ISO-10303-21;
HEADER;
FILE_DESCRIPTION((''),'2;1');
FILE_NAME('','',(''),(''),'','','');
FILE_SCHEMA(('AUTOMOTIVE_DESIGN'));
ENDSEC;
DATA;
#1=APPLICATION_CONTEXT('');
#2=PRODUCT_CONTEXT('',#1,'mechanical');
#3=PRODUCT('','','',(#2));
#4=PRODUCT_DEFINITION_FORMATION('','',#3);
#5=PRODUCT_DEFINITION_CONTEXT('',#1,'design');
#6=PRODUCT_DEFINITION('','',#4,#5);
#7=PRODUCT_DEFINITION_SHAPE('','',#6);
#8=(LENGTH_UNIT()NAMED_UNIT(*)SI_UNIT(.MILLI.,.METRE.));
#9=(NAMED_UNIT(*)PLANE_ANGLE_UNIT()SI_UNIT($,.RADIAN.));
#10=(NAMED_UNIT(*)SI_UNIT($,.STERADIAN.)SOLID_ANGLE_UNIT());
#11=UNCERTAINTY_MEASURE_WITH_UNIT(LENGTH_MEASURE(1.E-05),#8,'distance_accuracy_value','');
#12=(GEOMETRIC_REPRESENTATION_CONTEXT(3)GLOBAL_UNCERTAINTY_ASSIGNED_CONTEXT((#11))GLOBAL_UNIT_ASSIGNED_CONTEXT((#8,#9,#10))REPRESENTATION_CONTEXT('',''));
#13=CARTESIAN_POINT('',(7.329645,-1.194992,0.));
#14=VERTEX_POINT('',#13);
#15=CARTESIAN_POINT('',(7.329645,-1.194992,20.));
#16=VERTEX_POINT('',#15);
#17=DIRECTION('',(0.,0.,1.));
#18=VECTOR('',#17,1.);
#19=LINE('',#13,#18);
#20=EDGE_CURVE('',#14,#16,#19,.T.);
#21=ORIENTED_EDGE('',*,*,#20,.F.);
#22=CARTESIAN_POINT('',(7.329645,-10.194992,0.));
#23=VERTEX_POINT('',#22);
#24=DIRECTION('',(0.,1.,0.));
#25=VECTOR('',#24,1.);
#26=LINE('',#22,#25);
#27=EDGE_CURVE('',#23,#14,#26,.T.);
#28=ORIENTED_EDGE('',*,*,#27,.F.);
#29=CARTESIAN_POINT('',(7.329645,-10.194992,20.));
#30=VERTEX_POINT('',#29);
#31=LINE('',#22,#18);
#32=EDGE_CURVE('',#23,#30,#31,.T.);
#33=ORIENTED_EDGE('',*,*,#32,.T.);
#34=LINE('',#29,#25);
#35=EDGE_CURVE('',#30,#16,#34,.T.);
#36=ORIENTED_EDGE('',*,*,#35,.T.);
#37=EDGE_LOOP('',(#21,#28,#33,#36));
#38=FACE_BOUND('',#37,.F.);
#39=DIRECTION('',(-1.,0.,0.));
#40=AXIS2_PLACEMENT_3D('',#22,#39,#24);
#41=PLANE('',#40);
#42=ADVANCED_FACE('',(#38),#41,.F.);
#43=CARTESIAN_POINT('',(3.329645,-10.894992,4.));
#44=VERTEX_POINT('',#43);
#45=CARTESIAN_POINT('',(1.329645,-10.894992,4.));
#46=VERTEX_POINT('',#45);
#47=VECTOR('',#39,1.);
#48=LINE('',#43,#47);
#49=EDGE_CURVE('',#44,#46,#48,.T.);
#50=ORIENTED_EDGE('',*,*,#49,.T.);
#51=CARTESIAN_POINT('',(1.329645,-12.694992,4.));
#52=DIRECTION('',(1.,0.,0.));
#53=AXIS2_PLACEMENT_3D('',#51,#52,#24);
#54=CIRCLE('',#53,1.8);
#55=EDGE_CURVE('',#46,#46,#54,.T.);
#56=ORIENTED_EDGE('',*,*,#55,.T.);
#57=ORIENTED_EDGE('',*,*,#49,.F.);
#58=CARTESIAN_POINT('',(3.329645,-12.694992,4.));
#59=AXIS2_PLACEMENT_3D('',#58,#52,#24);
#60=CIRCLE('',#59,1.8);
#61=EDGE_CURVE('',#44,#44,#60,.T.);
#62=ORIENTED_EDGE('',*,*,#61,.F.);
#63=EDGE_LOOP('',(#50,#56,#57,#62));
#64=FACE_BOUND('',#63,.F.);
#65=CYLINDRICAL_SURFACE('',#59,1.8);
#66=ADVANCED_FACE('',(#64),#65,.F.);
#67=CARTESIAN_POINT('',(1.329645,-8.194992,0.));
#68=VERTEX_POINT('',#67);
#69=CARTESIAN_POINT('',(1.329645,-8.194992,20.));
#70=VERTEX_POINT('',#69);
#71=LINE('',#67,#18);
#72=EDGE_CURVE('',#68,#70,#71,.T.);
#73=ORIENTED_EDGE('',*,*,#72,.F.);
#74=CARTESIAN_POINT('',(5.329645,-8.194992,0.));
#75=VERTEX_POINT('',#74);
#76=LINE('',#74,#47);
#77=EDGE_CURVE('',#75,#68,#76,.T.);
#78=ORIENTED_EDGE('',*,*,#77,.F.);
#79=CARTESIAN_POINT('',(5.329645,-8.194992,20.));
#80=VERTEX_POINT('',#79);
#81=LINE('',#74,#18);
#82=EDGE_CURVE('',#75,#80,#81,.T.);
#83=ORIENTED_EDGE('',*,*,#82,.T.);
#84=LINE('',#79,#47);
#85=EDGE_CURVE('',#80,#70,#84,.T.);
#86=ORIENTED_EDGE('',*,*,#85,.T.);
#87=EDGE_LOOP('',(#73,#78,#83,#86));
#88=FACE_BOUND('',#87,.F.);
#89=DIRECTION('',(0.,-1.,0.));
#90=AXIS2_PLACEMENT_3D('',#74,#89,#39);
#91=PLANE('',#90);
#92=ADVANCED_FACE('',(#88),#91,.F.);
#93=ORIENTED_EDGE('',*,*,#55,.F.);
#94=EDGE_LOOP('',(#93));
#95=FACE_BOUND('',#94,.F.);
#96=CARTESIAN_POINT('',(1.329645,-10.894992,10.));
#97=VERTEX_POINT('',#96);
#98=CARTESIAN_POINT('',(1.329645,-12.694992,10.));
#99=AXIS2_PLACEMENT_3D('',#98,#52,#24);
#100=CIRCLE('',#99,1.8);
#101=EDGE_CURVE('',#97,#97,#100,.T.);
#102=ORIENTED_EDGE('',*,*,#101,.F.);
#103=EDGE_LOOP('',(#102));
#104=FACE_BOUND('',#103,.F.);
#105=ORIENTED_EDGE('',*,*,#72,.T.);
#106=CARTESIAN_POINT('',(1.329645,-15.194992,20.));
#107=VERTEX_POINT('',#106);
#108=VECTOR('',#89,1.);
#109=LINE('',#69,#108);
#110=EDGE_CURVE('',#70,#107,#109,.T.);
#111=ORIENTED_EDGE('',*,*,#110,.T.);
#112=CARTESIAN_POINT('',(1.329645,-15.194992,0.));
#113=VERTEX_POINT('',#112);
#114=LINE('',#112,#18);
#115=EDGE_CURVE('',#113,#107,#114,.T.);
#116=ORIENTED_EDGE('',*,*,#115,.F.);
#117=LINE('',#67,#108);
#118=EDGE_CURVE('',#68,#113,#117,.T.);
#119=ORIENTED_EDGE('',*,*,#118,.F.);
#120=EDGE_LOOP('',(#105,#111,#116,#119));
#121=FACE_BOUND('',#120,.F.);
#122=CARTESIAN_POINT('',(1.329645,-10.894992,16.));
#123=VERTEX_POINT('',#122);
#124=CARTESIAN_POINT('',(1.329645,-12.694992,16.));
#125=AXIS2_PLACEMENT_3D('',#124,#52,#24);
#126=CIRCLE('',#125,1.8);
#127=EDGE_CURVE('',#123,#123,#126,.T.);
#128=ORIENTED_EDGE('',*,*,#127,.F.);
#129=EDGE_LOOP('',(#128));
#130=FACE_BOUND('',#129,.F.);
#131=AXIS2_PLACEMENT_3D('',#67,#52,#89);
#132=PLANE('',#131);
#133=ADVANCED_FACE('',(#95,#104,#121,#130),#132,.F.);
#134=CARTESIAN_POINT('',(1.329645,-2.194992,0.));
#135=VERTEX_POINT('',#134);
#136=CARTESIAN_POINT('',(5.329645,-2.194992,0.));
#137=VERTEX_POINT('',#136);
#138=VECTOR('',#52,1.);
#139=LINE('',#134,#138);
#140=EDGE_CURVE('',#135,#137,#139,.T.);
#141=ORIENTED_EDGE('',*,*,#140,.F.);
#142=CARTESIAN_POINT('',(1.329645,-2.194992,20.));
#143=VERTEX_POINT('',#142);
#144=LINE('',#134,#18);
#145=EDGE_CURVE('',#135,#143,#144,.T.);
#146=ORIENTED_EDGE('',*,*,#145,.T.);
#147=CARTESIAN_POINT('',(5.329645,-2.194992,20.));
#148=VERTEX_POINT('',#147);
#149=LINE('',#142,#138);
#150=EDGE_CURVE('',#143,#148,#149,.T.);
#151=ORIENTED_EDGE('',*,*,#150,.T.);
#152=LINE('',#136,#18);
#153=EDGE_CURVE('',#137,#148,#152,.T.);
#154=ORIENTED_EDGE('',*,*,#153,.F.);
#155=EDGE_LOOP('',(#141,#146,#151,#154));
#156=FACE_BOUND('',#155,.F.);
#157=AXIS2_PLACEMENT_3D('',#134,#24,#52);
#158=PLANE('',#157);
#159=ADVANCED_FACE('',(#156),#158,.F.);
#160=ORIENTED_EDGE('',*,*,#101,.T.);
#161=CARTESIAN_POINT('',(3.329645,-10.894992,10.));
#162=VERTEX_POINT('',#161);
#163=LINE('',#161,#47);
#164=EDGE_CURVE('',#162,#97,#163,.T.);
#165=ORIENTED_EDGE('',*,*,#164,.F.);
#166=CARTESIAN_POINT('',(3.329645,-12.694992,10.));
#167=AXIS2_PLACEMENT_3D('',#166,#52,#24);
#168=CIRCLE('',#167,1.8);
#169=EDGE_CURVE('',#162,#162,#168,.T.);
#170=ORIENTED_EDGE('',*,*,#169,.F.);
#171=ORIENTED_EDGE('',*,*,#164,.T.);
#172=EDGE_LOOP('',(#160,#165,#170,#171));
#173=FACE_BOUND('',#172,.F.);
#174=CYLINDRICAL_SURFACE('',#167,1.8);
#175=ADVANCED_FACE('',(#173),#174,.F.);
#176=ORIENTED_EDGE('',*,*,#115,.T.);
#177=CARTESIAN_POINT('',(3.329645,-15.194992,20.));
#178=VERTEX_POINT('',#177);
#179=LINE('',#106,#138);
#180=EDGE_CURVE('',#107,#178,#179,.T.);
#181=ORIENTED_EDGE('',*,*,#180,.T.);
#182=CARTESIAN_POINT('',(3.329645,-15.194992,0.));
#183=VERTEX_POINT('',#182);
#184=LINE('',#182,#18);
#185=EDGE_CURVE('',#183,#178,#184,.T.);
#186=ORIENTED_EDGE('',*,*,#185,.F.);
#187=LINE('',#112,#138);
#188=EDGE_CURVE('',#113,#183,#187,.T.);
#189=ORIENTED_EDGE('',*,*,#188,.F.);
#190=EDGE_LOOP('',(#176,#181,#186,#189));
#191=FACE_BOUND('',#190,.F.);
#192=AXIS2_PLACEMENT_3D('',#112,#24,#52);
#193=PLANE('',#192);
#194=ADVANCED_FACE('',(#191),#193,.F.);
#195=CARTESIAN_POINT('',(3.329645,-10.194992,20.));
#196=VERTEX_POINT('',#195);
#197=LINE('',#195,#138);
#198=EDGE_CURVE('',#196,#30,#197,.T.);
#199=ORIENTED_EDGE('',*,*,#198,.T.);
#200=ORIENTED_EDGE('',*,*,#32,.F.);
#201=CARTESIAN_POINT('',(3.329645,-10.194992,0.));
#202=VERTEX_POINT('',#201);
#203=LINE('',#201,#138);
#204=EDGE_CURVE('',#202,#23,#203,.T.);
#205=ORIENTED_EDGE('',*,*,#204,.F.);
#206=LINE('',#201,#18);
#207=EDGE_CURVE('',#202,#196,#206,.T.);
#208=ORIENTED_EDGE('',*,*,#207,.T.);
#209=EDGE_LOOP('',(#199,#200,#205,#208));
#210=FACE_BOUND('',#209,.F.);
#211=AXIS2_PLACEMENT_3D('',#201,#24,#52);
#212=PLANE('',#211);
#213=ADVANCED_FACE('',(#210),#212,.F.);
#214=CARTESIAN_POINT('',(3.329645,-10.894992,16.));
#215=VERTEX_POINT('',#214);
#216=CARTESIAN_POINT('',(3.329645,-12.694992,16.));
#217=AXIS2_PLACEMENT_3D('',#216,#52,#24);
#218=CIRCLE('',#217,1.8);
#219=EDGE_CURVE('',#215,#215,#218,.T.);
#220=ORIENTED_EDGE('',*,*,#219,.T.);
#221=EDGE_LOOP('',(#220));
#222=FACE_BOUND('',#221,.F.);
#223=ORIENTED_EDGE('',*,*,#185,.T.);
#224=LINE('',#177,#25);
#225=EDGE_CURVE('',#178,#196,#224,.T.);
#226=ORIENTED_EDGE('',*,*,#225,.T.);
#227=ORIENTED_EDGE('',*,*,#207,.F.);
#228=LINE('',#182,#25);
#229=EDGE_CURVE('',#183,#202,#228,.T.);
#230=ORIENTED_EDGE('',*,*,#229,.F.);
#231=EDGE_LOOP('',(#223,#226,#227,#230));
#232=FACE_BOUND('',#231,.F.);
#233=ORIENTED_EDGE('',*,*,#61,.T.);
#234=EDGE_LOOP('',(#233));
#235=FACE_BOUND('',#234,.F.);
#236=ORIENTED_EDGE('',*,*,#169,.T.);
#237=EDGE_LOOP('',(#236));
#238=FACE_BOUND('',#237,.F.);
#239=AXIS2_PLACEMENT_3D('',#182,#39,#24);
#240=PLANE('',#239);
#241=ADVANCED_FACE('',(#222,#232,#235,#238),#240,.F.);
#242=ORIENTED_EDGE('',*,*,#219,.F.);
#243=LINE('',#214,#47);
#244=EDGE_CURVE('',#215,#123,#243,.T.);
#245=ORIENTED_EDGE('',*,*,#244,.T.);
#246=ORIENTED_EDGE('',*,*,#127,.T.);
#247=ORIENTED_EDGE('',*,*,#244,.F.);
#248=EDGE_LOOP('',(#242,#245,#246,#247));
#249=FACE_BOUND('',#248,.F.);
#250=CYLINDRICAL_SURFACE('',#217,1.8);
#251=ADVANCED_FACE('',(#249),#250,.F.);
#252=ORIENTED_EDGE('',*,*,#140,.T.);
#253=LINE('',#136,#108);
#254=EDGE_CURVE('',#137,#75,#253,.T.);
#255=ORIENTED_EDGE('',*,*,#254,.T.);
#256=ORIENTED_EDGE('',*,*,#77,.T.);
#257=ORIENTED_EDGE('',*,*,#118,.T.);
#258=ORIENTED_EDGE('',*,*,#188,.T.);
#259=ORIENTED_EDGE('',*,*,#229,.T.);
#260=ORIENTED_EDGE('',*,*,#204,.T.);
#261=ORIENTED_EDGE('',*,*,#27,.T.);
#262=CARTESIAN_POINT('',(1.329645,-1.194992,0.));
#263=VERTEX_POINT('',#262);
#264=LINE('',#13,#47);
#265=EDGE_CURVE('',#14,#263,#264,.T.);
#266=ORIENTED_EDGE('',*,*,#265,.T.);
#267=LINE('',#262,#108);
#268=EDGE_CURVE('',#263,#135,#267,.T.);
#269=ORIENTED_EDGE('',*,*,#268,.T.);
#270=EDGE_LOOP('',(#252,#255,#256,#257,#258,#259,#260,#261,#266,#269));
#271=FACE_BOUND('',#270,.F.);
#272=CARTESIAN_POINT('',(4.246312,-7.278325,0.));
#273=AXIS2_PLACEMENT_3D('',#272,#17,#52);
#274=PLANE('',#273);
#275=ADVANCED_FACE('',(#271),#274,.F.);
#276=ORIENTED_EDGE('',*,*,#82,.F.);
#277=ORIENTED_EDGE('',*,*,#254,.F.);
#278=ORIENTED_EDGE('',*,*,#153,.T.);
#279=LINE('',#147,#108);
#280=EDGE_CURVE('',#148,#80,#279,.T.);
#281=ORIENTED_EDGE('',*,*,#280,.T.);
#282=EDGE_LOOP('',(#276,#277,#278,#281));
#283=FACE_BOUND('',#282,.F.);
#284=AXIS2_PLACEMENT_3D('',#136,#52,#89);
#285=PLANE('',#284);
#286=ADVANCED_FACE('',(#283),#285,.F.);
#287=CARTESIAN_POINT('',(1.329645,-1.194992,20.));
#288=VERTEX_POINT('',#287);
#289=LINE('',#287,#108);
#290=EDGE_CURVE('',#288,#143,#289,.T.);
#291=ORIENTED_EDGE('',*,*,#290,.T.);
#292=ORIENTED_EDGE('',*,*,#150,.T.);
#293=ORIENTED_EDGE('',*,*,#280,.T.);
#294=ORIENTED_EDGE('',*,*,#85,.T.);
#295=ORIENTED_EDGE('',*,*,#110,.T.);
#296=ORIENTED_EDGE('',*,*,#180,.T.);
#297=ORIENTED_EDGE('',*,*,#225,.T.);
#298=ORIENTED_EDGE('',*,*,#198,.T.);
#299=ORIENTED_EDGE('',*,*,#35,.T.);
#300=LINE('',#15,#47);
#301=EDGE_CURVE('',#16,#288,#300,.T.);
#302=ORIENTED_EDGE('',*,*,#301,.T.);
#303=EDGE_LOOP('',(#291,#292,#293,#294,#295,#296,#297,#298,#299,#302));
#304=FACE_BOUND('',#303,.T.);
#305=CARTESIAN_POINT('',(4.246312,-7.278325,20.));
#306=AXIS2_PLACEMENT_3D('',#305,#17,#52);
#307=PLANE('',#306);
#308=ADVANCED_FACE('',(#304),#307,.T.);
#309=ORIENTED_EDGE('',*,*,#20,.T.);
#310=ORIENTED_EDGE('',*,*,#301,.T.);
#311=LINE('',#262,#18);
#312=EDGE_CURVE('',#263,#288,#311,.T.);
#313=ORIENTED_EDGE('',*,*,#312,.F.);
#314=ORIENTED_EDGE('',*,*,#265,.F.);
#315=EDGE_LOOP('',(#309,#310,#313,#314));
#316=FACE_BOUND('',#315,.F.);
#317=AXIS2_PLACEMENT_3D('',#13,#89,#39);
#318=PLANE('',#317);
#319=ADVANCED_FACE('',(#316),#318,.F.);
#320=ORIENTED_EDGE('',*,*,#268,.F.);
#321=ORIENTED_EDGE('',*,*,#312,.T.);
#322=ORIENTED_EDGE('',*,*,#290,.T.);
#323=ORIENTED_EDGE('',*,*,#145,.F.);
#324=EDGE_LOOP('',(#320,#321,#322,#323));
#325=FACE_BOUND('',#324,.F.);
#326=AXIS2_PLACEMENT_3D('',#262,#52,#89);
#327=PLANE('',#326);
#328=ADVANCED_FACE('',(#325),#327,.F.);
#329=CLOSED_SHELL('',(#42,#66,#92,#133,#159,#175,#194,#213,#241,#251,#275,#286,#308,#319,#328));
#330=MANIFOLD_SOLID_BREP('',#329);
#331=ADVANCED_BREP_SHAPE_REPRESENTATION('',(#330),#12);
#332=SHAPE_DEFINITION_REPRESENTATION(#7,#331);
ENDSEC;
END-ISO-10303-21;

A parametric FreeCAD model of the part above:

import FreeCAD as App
import Part
import Sketcher
from FreeCAD import Vector
Q = App.Units.Quantity

doc = App.newDocument("Part")
body = doc.addObject("PartDesign::Body", "Body")

sketch1 = body.newObject("Sketcher::SketchObject", "Sketch")
sketch1.AttachmentSupport = (doc.getObject("XY_Plane"), [""])
sketch1.MapMode = "FlatFace"
sketch1.addGeometry([
    Part.LineSegment(Vector(7.3, -10.2, 0), Vector(7.3, -1.2, 0)),
    Part.LineSegment(Vector(7.3, -1.2, 0), Vector(1.3, -1.2, 0)),
    Part.LineSegment(Vector(1.3, -1.2, 0), Vector(1.3, -2.2, 0)),
    Part.LineSegment(Vector(1.3, -2.2, 0), Vector(5.3, -2.2, 0)),
    Part.LineSegment(Vector(5.3, -2.2, 0), Vector(5.3, -8.2, 0)),
    Part.LineSegment(Vector(5.3, -8.2, 0), Vector(1.3, -8.2, 0)),
    Part.LineSegment(Vector(1.3, -8.2, 0), Vector(1.3, -15.2, 0)),
    Part.LineSegment(Vector(1.3, -15.2, 0), Vector(3.3, -15.2, 0)),
    Part.LineSegment(Vector(3.3, -15.2, 0), Vector(3.3, -10.2, 0)),
    Part.LineSegment(Vector(3.3, -10.2, 0), Vector(7.3, -10.2, 0)),
], False)
sketch1.addConstraint([
    Sketcher.Constraint("Coincident", 0, 2, 1, 1),
    Sketcher.Constraint("Coincident", 1, 2, 2, 1),
    Sketcher.Constraint("Coincident", 2, 2, 3, 1),
    Sketcher.Constraint("Coincident", 3, 2, 4, 1),
    Sketcher.Constraint("Coincident", 4, 2, 5, 1),
    Sketcher.Constraint("Coincident", 5, 2, 6, 1),
    Sketcher.Constraint("Coincident", 6, 2, 7, 1),
    Sketcher.Constraint("Coincident", 7, 2, 8, 1),
    Sketcher.Constraint("Coincident", 8, 2, 9, 1),
    Sketcher.Constraint("Coincident", 9, 2, 0, 1),
    Sketcher.Constraint("Vertical", 0),
    Sketcher.Constraint("Horizontal", 1),
    Sketcher.Constraint("Vertical", 2),
    Sketcher.Constraint("Horizontal", 3),
    Sketcher.Constraint("Vertical", 4),
    Sketcher.Constraint("Horizontal", 5),
    Sketcher.Constraint("Vertical", 6),
    Sketcher.Constraint("Horizontal", 7),
    Sketcher.Constraint("Vertical", 8),
    Sketcher.Constraint("Horizontal", 9),
    Sketcher.Constraint("Vertical", 2, 2, 5, 2),
    Sketcher.Constraint("Equal", 5, 9),
    Sketcher.Constraint("Equal", 1, 4),
    Sketcher.Constraint("DistanceX", 1, 2, 1, 1, Q("6 mm")),
    Sketcher.Constraint("DistanceX", 3, 1, 3, 2, Q("4 mm")),
    Sketcher.Constraint("DistanceY", 0, 1, 0, 2, Q("9 mm")),
    Sketcher.Constraint("DistanceY", 2, 2, 2, 1, Q("1 mm")),
    Sketcher.Constraint("DistanceY", 6, 2, 6, 1, Q("7 mm")),
    Sketcher.Constraint("DistanceY", 2, 2, -1, 1, Q("2.194992 mm")),
    Sketcher.Constraint("DistanceX", -1, 1, 0, 2, Q("7.329645 mm")),
])
pad1 = body.newObject("PartDesign::Pad", "Pad")
pad1.Profile = sketch1
pad1.Length = 20

sketch2 = body.newObject("Sketcher::SketchObject", "Sketch001")
sketch2.AttachmentSupport = (doc.getObject("YZ_Plane"), [""])
sketch2.MapMode = "FlatFace"
sketch2.AttachmentOffset = App.Placement(Vector(0, 0, 3.329645), App.Rotation())
sketch2.addGeometry([
    Part.Circle(Vector(-12.7, 16, 0), Vector(0, 0, 1), 1.8),
    Part.Circle(Vector(-12.7, 10, 0), Vector(0, 0, 1), 1.8),
    Part.Circle(Vector(-12.7, 4, 0), Vector(0, 0, 1), 1.8),
], False)
sketch2.addConstraint([
    Sketcher.Constraint("Equal", 0, 1),
    Sketcher.Constraint("Equal", 1, 2),
    Sketcher.Constraint("Vertical", 0, 3, 1, 3),
    Sketcher.Constraint("Vertical", 1, 3, 2, 3),
    Sketcher.Constraint("Diameter", 0, Q("3.6 mm")),
    Sketcher.Constraint("DistanceY", -1, 1, 0, 3, Q("16 mm")),
    Sketcher.Constraint("DistanceY", -1, 1, 1, 3, Q("10 mm")),
    Sketcher.Constraint("DistanceY", -1, 1, 2, 3, Q("4 mm")),
    Sketcher.Constraint("DistanceX", 0, 3, -1, 1, Q("12.694992 mm")),
])
pocket1 = body.newObject("PartDesign::Pocket", "Pocket")
pocket1.Profile = sketch2
pocket1.Length = 25

doc.recompute()
